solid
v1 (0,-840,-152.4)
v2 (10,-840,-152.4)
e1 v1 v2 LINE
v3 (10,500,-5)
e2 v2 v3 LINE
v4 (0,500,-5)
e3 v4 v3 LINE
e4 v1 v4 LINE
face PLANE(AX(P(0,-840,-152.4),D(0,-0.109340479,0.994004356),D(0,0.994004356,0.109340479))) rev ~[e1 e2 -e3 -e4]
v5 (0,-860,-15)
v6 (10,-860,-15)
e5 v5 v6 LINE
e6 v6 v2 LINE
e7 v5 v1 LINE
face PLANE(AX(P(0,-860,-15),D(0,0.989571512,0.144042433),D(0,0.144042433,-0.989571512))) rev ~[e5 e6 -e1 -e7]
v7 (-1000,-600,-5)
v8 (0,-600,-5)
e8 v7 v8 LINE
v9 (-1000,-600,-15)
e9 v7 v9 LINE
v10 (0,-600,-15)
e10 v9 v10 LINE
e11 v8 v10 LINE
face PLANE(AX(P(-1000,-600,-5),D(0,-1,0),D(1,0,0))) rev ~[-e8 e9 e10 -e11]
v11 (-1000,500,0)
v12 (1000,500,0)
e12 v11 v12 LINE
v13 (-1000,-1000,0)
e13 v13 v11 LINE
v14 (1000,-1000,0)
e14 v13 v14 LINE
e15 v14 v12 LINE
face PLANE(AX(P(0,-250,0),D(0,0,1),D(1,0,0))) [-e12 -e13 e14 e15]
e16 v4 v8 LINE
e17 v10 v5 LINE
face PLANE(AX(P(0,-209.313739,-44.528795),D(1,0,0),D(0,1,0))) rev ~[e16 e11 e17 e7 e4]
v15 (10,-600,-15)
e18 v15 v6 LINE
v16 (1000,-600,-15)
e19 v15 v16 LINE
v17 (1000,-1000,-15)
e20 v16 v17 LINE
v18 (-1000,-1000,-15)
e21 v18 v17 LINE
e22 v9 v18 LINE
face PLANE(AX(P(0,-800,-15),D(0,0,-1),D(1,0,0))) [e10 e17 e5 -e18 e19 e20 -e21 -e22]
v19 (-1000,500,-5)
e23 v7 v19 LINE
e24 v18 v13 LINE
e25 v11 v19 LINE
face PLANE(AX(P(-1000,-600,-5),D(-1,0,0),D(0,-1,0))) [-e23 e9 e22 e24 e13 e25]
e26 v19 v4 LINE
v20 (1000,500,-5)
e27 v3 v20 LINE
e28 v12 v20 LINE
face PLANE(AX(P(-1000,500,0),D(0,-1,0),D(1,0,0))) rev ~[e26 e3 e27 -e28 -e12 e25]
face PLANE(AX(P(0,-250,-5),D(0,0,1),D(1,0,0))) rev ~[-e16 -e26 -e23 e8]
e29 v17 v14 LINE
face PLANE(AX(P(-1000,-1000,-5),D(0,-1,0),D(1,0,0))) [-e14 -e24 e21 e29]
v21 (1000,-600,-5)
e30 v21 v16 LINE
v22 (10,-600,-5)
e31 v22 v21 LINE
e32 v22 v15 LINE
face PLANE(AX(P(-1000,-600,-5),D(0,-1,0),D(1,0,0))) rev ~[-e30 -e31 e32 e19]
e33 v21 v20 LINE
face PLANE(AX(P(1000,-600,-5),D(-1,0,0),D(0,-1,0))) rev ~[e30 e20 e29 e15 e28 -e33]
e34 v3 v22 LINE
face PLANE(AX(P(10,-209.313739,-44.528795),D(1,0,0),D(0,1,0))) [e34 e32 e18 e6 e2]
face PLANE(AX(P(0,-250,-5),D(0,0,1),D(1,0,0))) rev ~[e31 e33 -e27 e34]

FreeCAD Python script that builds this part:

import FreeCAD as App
import Part
import Sketcher

V = App.Vector
Q = App.Units.Quantity


def add_polygon(sketch, points):
    """Adds a closed chain of lines whose ends are joined by coincident constraints."""
    first, n = sketch.GeometryCount, len(points)
    for a, b in zip(points, points[1:] + points[:1]):
        sketch.addGeometry(Part.LineSegment(App.Vector(*a, 0), App.Vector(*b, 0)), False)
    for i in range(n):
        sketch.addConstraint(Sketcher.Constraint("Coincident", first + i, 2, first + (i + 1) % n, 1))

doc = App.newDocument("Part")
body = doc.addObject("PartDesign::Body", "Body")

# Sketch on XY plane
sketch1 = body.newObject("Sketcher::SketchObject", "Sketch")
sketch1.AttachmentSupport = (doc.getObject("XY_Plane"), [""])
sketch1.MapMode = "FlatFace"
add_polygon(sketch1, [(-1000, 500), (-1000, -1000), (1000, -1000), (1000, 500)])  # lines 0-3
sketch1.addConstraint([
    Sketcher.Constraint("Vertical", 0),
    Sketcher.Constraint("Horizontal", 1),
    Sketcher.Constraint("Vertical", 2),
    Sketcher.Constraint("Horizontal", 3),
    Sketcher.Constraint("DistanceX", 1, 1, 1, 2, Q("2000 mm")),
    Sketcher.Constraint("DistanceY", 0, 2, 0, 1, Q("1500 mm")),
    Sketcher.Constraint("DistanceX", 0, 2, -1, 1, Q("1000 mm")),
    Sketcher.Constraint("DistanceY", 0, 2, -1, 1, Q("1000 mm")),
])
pad1 = body.newObject("PartDesign::Pad", "Pad")
pad1.Profile = sketch1
pad1.Length = 5
pad1.Reversed = True

# Sketch on XY plane
sketch2 = body.newObject("Sketcher::SketchObject", "Sketch001")
sketch2.AttachmentSupport = (doc.getObject("XY_Plane"), [""])
sketch2.MapMode = "FlatFace"
sketch2.AttachmentOffset = App.Placement(V(0, 0, -5), App.Rotation())
add_polygon(sketch2, [(-1000, -1000), (-1000, -600), (1000, -600), (1000, -1000)])  # lines 0-3
sketch2.addConstraint([
    Sketcher.Constraint("Vertical", 0),
    Sketcher.Constraint("Horizontal", 1),
    Sketcher.Constraint("Vertical", 2),
    Sketcher.Constraint("Horizontal", 3),
    Sketcher.Constraint("DistanceX", 1, 1, 1, 2, Q("2000 mm")),
    Sketcher.Constraint("DistanceY", 0, 1, 0, 2, Q("400 mm")),
    Sketcher.Constraint("DistanceX", 0, 2, -1, 1, Q("1000 mm")),
    Sketcher.Constraint("DistanceY", 0, 2, -1, 1, Q("600 mm")),
])
pad2 = body.newObject("PartDesign::Pad", "Pad001")
pad2.Profile = sketch2
pad2.Length = 10
pad2.Reversed = True

# Sketch on YZ plane
sketch3 = body.newObject("Sketcher::SketchObject", "Sketch002")
sketch3.AttachmentSupport = (doc.getObject("YZ_Plane"), [""])
sketch3.MapMode = "FlatFace"
add_polygon(sketch3, [(-600, -15), (-860, -15), (-840, -152), (500, -5), (-600, -5)])  # lines 0-4
sketch3.addConstraint([
    Sketcher.Constraint("Horizontal", 0),
    Sketcher.Constraint("Horizontal", 3),
    Sketcher.Constraint("Vertical", 4),
    Sketcher.Constraint("DistanceX", 0, 2, 0, 1, Q("260 mm")),
    Sketcher.Constraint("DistanceX", 3, 2, 3, 1, Q("1100 mm")),
    Sketcher.Constraint("DistanceY", 4, 2, 4, 1, Q("10 mm")),
    Sketcher.Constraint("DistanceX", 0, 2, -1, 1, Q("860 mm")),
    Sketcher.Constraint("DistanceY", 0, 2, -1, 1, Q("15 mm")),
    Sketcher.Constraint("DistanceX", 1, 2, -1, 1, Q("840 mm")),
    Sketcher.Constraint("DistanceY", 1, 2, -1, 1, Q("152.4 mm")),
])
pad3 = body.newObject("PartDesign::Pad", "Pad002")
pad3.Profile = sketch3
pad3.Length = 10

doc.recompute()
